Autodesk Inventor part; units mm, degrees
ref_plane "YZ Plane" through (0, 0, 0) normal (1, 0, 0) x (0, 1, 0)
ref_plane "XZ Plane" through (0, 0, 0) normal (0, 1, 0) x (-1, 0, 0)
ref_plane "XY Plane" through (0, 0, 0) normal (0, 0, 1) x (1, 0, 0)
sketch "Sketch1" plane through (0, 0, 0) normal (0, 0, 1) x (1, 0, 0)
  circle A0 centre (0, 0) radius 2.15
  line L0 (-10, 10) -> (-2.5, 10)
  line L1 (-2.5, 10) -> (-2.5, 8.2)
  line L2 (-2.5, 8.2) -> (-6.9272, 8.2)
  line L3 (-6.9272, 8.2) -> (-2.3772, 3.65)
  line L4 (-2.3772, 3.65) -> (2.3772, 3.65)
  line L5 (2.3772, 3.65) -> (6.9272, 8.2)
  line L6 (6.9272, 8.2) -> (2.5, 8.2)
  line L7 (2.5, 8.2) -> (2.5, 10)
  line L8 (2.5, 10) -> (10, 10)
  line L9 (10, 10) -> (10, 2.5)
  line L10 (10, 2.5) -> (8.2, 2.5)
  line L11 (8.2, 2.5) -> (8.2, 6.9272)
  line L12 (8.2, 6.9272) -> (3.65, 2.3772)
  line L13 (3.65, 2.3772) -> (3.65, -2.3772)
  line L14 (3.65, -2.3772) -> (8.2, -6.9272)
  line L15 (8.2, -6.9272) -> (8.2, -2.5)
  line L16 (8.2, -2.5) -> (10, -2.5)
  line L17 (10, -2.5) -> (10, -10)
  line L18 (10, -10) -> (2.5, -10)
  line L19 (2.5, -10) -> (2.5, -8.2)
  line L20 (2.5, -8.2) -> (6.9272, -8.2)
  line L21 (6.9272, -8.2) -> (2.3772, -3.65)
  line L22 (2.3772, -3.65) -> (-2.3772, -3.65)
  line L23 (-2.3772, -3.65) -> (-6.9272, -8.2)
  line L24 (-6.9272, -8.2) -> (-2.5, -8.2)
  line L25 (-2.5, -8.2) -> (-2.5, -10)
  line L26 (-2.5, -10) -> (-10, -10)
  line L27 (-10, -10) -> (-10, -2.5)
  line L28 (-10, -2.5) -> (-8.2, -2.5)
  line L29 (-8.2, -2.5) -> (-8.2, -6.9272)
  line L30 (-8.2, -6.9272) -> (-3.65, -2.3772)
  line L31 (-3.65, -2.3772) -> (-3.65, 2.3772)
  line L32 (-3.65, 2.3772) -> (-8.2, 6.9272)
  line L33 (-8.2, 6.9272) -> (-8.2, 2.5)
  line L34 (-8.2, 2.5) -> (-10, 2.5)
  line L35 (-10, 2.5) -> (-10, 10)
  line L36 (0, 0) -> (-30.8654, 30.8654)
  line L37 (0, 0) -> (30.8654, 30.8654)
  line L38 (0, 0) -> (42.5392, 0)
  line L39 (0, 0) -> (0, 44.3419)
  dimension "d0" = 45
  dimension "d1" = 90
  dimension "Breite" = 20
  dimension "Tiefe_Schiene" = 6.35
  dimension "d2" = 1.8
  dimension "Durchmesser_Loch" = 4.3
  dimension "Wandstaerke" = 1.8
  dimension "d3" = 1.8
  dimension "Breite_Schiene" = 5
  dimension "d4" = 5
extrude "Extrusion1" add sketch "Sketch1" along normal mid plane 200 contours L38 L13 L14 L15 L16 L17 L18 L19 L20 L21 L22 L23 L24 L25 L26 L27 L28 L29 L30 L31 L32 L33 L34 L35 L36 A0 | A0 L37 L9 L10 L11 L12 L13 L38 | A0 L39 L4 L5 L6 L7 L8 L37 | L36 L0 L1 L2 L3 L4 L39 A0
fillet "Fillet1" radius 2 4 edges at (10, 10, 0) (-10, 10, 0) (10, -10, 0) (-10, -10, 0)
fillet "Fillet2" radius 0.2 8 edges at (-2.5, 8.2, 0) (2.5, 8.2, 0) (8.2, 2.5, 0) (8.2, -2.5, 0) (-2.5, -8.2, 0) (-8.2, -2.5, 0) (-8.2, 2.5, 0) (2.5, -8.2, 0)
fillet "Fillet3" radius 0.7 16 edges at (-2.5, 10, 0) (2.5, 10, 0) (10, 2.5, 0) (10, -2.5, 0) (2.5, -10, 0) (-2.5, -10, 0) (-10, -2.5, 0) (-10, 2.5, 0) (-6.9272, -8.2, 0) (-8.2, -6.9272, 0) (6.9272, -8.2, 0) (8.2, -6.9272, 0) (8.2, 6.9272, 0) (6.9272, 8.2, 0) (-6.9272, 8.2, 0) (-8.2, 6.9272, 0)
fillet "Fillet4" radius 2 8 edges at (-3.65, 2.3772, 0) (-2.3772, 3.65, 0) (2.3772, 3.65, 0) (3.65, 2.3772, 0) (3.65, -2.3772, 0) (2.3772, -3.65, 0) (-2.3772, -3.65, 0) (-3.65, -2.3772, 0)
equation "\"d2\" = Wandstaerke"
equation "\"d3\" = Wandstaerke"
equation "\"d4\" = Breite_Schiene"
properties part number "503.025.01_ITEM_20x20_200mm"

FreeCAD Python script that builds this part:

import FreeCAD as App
import Part
import Sketcher

V = App.Vector
Q = App.Units.Quantity


def edges_at(feature, points):
    """Names of the edges that pass closest to the given points."""
    edges = feature.Shape.Edges
    near = lambda p: min(range(len(edges)), key=lambda i: edges[i].distToShape(Part.Vertex(*p))[0])
    return sorted({f"Edge{near(p) + 1}" for p in points})


def add_polygon(sketch, points):
    """Adds a closed chain of lines whose ends are joined by coincident constraints."""
    first, n = sketch.GeometryCount, len(points)
    for a, b in zip(points, points[1:] + points[:1]):
        sketch.addGeometry(Part.LineSegment(App.Vector(*a, 0), App.Vector(*b, 0)), False)
    for i in range(n):
        sketch.addConstraint(Sketcher.Constraint("Coincident", first + i, 2, first + (i + 1) % n, 1))

doc = App.newDocument("Part")
body = doc.addObject("PartDesign::Body", "Body")

sketch1 = body.newObject("Sketcher::SketchObject", "Sketch")
sketch1.AttachmentSupport = (doc.getObject("XY_Plane"), [""])
sketch1.MapMode = "FlatFace"
add_polygon(sketch1, [(3.65, -2.3772), (3.65, 2.3772), (8.2, 6.9272), (8.2, 2.5), (10, 2.5), (10, 10), (2.5, 10), (2.5, 8.2), (6.9272, 8.2), (2.3772, 3.65), (-2.3772, 3.65), (-6.9272, 8.2), (-2.5, 8.2), (-2.5, 10), (-10, 10), (-10, 2.5), (-8.2, 2.5), (-8.2, 6.9272), (-3.65, 2.3772), (-3.65, -2.3772), (-8.2, -6.9272), (-8.2, -2.5), (-10, -2.5), (-10, -10), (-2.5, -10), (-2.5, -8.2), (-6.9272, -8.2), (-2.3772, -3.65), (2.3772, -3.65), (6.9272, -8.2), (2.5, -8.2), (2.5, -10), (10, -10), (10, -2.5), (8.2, -2.5), (8.2, -6.9272)])
sketch1.addGeometry(Part.Circle(V(0, 0, 0), V(0, 0, 1), 2.15), False)
sketch1.addConstraint(Sketcher.Constraint("Vertical", 0))
sketch1.addConstraint(Sketcher.Constraint("Vertical", 2))
sketch1.addConstraint(Sketcher.Constraint("Horizontal", 3))
sketch1.addConstraint(Sketcher.Constraint("Vertical", 4))
sketch1.addConstraint(Sketcher.Constraint("Horizontal", 5))
sketch1.addConstraint(Sketcher.Constraint("Vertical", 6))
sketch1.addConstraint(Sketcher.Constraint("Horizontal", 7))
sketch1.addConstraint(Sketcher.Constraint("Horizontal", 9))
sketch1.addConstraint(Sketcher.Constraint("Horizontal", 11))
sketch1.addConstraint(Sketcher.Constraint("Vertical", 12))
sketch1.addConstraint(Sketcher.Constraint("Horizontal", 13))
sketch1.addConstraint(Sketcher.Constraint("Vertical", 14))
sketch1.addConstraint(Sketcher.Constraint("Horizontal", 15))
sketch1.addConstraint(Sketcher.Constraint("Vertical", 16))
sketch1.addConstraint(Sketcher.Constraint("Vertical", 18))
sketch1.addConstraint(Sketcher.Constraint("Vertical", 20))
sketch1.addConstraint(Sketcher.Constraint("Horizontal", 21))
sketch1.addConstraint(Sketcher.Constraint("Vertical", 22))
sketch1.addConstraint(Sketcher.Constraint("Horizontal", 23))
sketch1.addConstraint(Sketcher.Constraint("Vertical", 24))
sketch1.addConstraint(Sketcher.Constraint("Horizontal", 25))
sketch1.addConstraint(Sketcher.Constraint("Horizontal", 27))
sketch1.addConstraint(Sketcher.Constraint("Horizontal", 29))
sketch1.addConstraint(Sketcher.Constraint("Vertical", 30))
sketch1.addConstraint(Sketcher.Constraint("Horizontal", 31))
sketch1.addConstraint(Sketcher.Constraint("Vertical", 32))
sketch1.addConstraint(Sketcher.Constraint("Horizontal", 33))
sketch1.addConstraint(Sketcher.Constraint("Vertical", 34))
sketch1.addConstraint(Sketcher.Constraint("Coincident", 36, 3, -1, 1))
sketch1.addConstraint(Sketcher.Constraint("Symmetric", 0, 2, 18, 2, -1, 1))
sketch1.addConstraint(Sketcher.Constraint("Symmetric", 1, 2, 19, 2, -1, 1))
sketch1.addConstraint(Sketcher.Constraint("Symmetric", 3, 2, 21, 2, -1, 1))
sketch1.addConstraint(Sketcher.Constraint("Symmetric", 5, 2, 23, 2, -1, 1))
sketch1.addConstraint(Sketcher.Constraint("Symmetric", 7, 2, 25, 2, -1, 1))
sketch1.addConstraint(Sketcher.Constraint("Symmetric", 8, 2, 26, 2, -1, 1))
sketch1.addConstraint(Sketcher.Constraint("Symmetric", 10, 2, 28, 2, -1, 1))
sketch1.addConstraint(Sketcher.Constraint("Symmetric", 12, 2, 30, 2, -1, 1))
sketch1.addConstraint(Sketcher.Constraint("Symmetric", 14, 2, 32, 2, -1, 1))
sketch1.addConstraint(Sketcher.Constraint("Symmetric", 16, 2, 34, 2, -1, 1))
sketch1.addConstraint(Sketcher.Constraint("Symmetric", 7, 2, 10, 2, -2))
sketch1.addConstraint(Sketcher.Constraint("Symmetric", 5, 2, 12, 2, -2))
sketch1.addConstraint(Sketcher.Constraint("Symmetric", 3, 2, 14, 2, -2))
sketch1.addConstraint(Sketcher.Constraint("Symmetric", 1, 2, 16, 2, -2))
sketch1.addConstraint(Sketcher.Constraint("Parallel", 1, 8))
sketch1.addConstraint(Sketcher.Constraint("Perpendicular", 8, 10))
sketch1.addConstraint(Sketcher.Constraint("Parallel", 10, 17))
sketch1.addConstraint(Sketcher.Constraint("Perpendicular", 26, 28))
sketch1.addConstraint(Sketcher.Constraint("Parallel", 28, 35))
sketch1.addConstraint(Sketcher.Constraint("Horizontal", 0, 2, 17, 2))
sketch1.addConstraint(Sketcher.Constraint("Equal", 27, 0))
sketch1.addConstraint(Sketcher.Constraint("Equal", 29, 2))
sketch1.addConstraint(Sketcher.Constraint("Equal", 31, 4))
sketch1.addConstraint(Sketcher.Constraint("Equal", 33, 6))
sketch1.addConstraint(Sketcher.Constraint("Equal", 1, 8))
sketch1.addConstraint(Sketcher.Constraint("Diameter", 36, Q("4.3 mm")))
sketch1.addConstraint(Sketcher.Constraint("DistanceX", 3, 1, 3, 2, Q("1.8 mm")))
sketch1.addConstraint(Sketcher.Constraint("DistanceX", 11, 2, 6, 2, Q("5 mm")))
sketch1.addConstraint(Sketcher.Constraint("DistanceX", 0, 2, 3, 2, Q("6.35 mm")))
sketch1.addConstraint(Sketcher.Constraint("DistanceX", 5, 2, 5, 1, Q("7.5 mm")))
sketch1.addConstraint(Sketcher.Constraint("DistanceX", 7, 1, 7, 2, Q("4.4272 mm")))
pad1 = body.newObject("PartDesign::Pad", "Pad")
pad1.Profile = sketch1
pad1.Length = 200
pad1.Midplane = True
doc.recompute()

fillet = body.newObject("PartDesign::Fillet", "Fillet")
fillet.Base = (pad1, edges_at(pad1, [
    (10, 10, 0),
    (-10, 10, 0),
    (10, -10, 0),
    (-10, -10, 0),
]))
fillet.Radius = 2
doc.recompute()

fillet2 = body.newObject("PartDesign::Fillet", "Fillet001")
fillet2.Base = (fillet, edges_at(fillet, [
    (-2.5, 8.2, 0),
    (2.5, 8.2, 0),
    (8.2, 2.5, 0),
    (8.2, -2.5, 0),
    (-2.5, -8.2, 0),
    (-8.2, -2.5, 0),
    (-8.2, 2.5, 0),
    (2.5, -8.2, 0),
]))
fillet2.Radius = 0.2
doc.recompute()

fillet3 = body.newObject("PartDesign::Fillet", "Fillet002")
fillet3.Base = (fillet2, edges_at(fillet2, [
    (-2.5, 10, 0),
    (2.5, 10, 0),
    (10, 2.5, 0),
    (10, -2.5, 0),
    (2.5, -10, 0),
    (-2.5, -10, 0),
    (-10, -2.5, 0),
    (-10, 2.5, 0),
    (-6.927, -8.2, 0),
    (-8.2, -6.927, 0),
    (6.927, -8.2, 0),
    (8.2, -6.927, 0),
    (8.2, 6.927, 0),
    (6.927, 8.2, 0),
    (-6.927, 8.2, 0),
    (-8.2, 6.927, 0),
]))
fillet3.Radius = 0.7
doc.recompute()

fillet4 = body.newObject("PartDesign::Fillet", "Fillet003")
fillet4.Base = (fillet3, edges_at(fillet3, [
    (-3.65, 2.377, 0),
    (-2.377, 3.65, 0),
    (2.377, 3.65, 0),
    (3.65, 2.377, 0),
    (3.65, -2.377, 0),
    (2.377, -3.65, 0),
    (-2.377, -3.65, 0),
    (-3.65, -2.377, 0),
]))
fillet4.Radius = 2

doc.recompute()
